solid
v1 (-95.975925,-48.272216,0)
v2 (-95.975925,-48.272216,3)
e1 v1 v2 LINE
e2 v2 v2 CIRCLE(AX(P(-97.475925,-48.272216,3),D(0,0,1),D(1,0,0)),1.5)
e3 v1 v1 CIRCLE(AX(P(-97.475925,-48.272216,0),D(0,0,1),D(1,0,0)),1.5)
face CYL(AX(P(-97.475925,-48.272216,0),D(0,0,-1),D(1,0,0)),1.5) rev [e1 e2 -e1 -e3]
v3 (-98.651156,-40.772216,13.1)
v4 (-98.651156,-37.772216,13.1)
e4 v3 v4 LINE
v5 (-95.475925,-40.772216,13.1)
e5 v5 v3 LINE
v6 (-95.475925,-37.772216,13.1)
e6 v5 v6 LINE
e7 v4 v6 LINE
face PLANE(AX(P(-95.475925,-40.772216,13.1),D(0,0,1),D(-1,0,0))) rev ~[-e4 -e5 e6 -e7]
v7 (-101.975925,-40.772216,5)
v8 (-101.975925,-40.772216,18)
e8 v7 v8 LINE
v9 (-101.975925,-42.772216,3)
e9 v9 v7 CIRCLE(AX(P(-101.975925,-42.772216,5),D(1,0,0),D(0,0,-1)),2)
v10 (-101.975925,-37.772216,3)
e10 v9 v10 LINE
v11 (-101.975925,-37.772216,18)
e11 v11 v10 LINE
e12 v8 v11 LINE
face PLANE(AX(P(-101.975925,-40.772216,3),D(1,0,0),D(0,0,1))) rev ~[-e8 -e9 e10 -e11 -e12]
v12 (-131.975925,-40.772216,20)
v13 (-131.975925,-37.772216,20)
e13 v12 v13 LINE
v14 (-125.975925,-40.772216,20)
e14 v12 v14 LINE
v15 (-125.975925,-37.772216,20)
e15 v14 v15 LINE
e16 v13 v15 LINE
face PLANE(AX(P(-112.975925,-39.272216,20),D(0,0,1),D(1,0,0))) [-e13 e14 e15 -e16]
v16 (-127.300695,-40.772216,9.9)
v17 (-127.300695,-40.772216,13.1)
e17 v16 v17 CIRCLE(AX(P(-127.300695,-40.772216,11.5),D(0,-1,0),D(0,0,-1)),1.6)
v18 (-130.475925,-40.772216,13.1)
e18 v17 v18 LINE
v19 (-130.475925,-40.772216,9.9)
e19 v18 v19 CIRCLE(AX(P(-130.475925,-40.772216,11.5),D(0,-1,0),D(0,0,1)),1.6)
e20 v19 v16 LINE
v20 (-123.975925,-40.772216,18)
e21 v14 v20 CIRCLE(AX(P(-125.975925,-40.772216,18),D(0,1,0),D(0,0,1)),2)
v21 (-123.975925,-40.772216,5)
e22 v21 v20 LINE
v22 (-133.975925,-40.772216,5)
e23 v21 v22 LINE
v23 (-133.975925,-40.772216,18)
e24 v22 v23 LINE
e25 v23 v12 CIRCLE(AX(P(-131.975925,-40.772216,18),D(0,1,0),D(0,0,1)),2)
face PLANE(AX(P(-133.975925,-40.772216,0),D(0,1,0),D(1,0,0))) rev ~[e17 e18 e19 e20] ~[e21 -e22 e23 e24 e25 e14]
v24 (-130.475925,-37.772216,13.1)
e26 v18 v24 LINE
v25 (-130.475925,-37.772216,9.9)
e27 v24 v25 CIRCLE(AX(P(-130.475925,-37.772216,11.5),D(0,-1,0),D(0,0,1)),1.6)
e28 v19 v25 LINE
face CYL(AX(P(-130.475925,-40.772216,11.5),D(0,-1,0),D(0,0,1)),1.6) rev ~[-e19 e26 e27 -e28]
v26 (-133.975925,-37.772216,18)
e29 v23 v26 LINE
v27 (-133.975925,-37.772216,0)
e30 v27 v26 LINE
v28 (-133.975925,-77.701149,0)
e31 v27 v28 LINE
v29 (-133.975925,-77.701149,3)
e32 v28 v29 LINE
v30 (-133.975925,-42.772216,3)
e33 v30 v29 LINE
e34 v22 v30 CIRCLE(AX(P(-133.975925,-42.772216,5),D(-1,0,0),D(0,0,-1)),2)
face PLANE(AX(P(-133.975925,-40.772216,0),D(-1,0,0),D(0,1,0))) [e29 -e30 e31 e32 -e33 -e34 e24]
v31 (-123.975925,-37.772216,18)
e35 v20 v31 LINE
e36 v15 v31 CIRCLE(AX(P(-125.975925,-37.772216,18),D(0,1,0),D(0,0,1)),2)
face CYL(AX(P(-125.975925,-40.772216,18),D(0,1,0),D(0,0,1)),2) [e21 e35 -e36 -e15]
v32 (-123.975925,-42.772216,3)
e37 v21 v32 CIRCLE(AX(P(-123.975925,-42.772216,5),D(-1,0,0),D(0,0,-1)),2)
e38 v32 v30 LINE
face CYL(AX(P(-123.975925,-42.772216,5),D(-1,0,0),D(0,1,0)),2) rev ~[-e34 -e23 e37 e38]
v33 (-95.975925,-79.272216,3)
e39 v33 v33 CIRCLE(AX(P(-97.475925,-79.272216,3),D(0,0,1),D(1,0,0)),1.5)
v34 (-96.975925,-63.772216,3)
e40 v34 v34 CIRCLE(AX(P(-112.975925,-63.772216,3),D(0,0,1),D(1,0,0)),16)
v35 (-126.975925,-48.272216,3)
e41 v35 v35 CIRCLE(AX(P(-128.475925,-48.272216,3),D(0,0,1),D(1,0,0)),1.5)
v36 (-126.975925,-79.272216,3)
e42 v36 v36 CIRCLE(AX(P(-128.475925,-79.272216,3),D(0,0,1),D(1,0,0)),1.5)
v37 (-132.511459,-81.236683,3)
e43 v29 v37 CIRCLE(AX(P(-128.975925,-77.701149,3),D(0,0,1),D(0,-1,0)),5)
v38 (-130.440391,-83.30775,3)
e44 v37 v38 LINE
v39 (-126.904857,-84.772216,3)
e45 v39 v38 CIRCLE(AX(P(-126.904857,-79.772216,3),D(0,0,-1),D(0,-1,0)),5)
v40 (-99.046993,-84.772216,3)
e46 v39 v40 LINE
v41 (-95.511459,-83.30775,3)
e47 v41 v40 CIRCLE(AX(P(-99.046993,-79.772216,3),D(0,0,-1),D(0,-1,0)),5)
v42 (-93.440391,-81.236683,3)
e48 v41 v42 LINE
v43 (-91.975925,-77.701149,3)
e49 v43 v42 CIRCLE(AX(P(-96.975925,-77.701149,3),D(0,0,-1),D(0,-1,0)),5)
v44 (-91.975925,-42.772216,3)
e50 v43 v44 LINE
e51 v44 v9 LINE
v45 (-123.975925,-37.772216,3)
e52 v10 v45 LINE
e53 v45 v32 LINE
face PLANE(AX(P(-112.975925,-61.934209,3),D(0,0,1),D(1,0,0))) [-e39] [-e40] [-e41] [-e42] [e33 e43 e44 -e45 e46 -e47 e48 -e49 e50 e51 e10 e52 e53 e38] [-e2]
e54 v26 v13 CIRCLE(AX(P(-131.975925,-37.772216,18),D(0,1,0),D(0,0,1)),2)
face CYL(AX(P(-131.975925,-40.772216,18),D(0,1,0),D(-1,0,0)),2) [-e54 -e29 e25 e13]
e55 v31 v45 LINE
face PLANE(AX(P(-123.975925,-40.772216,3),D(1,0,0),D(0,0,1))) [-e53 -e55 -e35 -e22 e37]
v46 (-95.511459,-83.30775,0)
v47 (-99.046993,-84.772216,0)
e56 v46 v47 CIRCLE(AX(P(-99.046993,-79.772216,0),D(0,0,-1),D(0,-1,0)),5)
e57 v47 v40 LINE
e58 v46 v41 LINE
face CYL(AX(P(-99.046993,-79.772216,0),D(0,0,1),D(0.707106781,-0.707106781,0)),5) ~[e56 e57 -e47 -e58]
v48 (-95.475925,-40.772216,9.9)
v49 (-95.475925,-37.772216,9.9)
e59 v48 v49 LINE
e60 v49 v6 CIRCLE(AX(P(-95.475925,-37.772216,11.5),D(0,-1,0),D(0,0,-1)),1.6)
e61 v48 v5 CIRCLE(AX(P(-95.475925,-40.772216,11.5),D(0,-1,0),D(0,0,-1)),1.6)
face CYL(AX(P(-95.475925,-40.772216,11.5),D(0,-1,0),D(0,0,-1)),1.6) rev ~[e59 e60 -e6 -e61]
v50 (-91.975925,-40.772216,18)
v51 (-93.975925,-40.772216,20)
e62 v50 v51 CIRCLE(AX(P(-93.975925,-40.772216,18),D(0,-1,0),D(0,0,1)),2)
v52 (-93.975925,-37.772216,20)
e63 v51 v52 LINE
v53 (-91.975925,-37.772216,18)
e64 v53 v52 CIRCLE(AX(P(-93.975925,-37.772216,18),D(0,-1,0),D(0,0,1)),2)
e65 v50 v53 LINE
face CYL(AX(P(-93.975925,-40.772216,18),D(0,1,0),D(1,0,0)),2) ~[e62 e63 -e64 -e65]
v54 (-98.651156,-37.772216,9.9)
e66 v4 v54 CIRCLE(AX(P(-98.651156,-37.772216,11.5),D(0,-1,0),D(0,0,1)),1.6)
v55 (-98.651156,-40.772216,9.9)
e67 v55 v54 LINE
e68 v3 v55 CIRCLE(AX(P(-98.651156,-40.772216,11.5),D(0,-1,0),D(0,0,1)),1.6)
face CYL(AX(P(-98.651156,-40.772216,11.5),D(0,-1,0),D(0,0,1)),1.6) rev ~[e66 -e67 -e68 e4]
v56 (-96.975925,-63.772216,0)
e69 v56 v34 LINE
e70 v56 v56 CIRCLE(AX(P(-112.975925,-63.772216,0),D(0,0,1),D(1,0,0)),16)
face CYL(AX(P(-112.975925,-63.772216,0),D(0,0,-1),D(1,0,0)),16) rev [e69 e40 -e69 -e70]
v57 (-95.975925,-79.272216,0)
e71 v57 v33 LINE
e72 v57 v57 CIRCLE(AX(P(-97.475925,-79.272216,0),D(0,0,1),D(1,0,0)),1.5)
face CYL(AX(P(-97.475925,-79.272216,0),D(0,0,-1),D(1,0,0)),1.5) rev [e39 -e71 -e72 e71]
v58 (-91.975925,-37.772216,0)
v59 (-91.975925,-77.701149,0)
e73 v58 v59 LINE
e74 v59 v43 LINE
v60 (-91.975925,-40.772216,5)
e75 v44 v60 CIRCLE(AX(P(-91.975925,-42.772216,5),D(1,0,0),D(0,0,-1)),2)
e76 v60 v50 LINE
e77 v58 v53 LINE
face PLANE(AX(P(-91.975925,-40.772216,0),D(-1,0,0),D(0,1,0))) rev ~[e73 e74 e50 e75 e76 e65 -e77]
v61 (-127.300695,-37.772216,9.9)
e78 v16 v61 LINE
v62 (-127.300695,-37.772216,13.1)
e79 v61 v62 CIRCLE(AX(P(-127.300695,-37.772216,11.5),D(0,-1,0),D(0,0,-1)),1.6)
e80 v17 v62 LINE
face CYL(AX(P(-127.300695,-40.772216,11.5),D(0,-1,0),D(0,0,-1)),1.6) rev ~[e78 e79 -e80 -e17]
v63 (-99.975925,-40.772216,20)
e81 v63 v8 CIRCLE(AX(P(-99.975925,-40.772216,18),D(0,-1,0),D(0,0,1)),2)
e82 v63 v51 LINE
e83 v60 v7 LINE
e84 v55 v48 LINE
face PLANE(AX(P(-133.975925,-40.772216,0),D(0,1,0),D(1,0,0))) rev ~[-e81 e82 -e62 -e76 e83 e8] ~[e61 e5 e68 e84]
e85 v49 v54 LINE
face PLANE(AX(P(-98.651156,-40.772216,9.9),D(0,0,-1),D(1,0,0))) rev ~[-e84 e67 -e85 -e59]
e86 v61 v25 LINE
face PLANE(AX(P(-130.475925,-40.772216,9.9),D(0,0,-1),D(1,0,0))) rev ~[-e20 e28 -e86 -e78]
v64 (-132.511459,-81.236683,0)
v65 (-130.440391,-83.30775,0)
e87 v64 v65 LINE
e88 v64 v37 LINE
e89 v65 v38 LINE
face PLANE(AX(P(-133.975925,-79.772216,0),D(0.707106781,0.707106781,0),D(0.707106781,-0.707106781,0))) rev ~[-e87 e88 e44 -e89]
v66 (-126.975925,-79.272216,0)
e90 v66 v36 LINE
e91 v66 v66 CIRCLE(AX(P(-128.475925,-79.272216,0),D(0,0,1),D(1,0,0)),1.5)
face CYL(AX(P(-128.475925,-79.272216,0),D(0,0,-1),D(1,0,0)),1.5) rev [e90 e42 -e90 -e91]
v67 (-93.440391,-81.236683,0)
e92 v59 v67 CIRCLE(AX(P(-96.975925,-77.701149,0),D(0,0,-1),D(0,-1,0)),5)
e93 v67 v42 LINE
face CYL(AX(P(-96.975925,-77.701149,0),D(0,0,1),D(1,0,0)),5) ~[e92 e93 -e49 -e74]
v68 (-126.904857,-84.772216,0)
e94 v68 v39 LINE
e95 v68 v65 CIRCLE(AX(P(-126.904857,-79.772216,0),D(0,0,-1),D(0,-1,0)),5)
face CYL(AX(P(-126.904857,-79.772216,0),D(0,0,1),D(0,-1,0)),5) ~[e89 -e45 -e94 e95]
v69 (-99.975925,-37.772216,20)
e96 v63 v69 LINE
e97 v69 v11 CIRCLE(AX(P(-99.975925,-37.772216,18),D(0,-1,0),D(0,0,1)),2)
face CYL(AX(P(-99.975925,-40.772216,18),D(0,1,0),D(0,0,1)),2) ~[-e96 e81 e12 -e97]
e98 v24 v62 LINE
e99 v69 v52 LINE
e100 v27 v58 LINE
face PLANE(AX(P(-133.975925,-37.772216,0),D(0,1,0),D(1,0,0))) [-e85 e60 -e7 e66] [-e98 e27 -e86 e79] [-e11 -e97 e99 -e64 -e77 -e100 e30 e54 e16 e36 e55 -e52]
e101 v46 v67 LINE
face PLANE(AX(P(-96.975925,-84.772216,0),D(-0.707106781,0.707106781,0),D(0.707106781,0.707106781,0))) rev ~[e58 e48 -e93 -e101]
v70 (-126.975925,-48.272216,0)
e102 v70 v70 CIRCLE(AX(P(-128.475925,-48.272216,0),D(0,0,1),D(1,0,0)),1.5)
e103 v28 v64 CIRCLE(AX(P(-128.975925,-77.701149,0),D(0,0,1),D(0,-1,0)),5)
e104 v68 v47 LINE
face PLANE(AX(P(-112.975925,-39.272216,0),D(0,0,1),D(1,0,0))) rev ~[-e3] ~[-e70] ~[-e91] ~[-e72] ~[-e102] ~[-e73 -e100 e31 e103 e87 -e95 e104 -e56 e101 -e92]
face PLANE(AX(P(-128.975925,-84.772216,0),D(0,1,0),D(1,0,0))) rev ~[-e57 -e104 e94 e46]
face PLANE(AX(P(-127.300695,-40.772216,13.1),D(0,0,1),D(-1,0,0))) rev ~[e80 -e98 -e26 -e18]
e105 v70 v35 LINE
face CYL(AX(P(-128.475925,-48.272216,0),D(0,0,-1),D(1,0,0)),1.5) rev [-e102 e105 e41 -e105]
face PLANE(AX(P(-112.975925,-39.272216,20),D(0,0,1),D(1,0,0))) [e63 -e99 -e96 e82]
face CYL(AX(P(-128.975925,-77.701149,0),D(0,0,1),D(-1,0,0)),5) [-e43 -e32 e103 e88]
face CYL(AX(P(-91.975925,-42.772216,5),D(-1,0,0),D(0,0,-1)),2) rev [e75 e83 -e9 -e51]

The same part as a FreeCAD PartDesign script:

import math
import FreeCAD as App
import Part
import Sketcher

V = App.Vector
Q = App.Units.Quantity


def edges_at(feature, points):
    """Names of the edges that pass closest to the given points."""
    edges = feature.Shape.Edges
    near = lambda p: min(range(len(edges)), key=lambda i: edges[i].distToShape(Part.Vertex(*p))[0])
    return sorted({f"Edge{near(p) + 1}" for p in points})


def add_polygon(sketch, points):
    """Adds a closed chain of lines whose ends are joined by coincident constraints."""
    first, n = sketch.GeometryCount, len(points)
    for a, b in zip(points, points[1:] + points[:1]):
        sketch.addGeometry(Part.LineSegment(App.Vector(*a, 0), App.Vector(*b, 0)), False)
    for i in range(n):
        sketch.addConstraint(Sketcher.Constraint("Coincident", first + i, 2, first + (i + 1) % n, 1))

doc = App.newDocument("Part")
body = doc.addObject("PartDesign::Body", "Body")

# Sketch on XY plane
sketch1 = doc.addObject("Sketcher::SketchObject", "Sketch")
body.addObject(sketch1)
sketch1.AttachmentSupport = (doc.XY_Plane, [""])
sketch1.MapMode = "FlatFace"
add_polygon(sketch1, [(-97, -84.8), (-92, -79.8), (-92, -40.8), (-134, -40.8), (-134, -79.8), (-129, -84.8)])  # lines 0-5
sketch1.addGeometry(Part.Circle(V(-128.5, -79.3, 0), V(0, 0, 1), 1.5), False)  # 6
sketch1.addGeometry(Part.Circle(V(-97.5, -79.3, 0), V(0, 0, 1), 1.5), False)  # 7
sketch1.addGeometry(Part.Circle(V(-113, -63.8, 0), V(0, 0, 1), 16), False)  # 8
sketch1.addGeometry(Part.Circle(V(-128.5, -48.3, 0), V(0, 0, 1), 1.5), False)  # 9
sketch1.addGeometry(Part.Circle(V(-97.5, -48.3, 0), V(0, 0, 1), 1.5), False)  # 10
sketch1.addConstraint([
    Sketcher.Constraint("Vertical", 1),
    Sketcher.Constraint("Horizontal", 2),
    Sketcher.Constraint("Vertical", 3),
    Sketcher.Constraint("Horizontal", 5),
    Sketcher.Constraint("Equal", 6, 7),
    Sketcher.Constraint("Equal", 7, 9),
    Sketcher.Constraint("Equal", 9, 10),
    Sketcher.Constraint("Perpendicular", 0, 4),
    Sketcher.Constraint("Horizontal", 6, 3, 7, 3),
    Sketcher.Constraint("Horizontal", 9, 3, 10, 3),
    Sketcher.Constraint("Horizontal", 0, 2, 3, 2),
    Sketcher.Constraint("Vertical", 6, 3, 9, 3),
    Sketcher.Constraint("Vertical", 7, 3, 10, 3),
    Sketcher.Constraint("Equal", 0, 4),
    Sketcher.Constraint("Diameter", 6, Q("3 mm")),
    Sketcher.Constraint("Diameter", 8, Q("32 mm")),
    Sketcher.Constraint("DistanceX", 2, 2, 2, 1, Q("42 mm")),
    Sketcher.Constraint("DistanceX", 5, 1, 5, 2, Q("32 mm")),
    Sketcher.Constraint("DistanceY", 1, 1, 1, 2, Q("39 mm")),
    Sketcher.Constraint("DistanceX", 6, 3, 7, 3, Q("31 mm")),
    Sketcher.Constraint("DistanceY", 6, 3, 9, 3, Q("31 mm")),
    Sketcher.Constraint("DistanceX", 8, 3, 0, 2, Q("21 mm")),
    Sketcher.Constraint("DistanceY", 0, 2, 8, 3, Q("16 mm")),
    Sketcher.Constraint("DistanceX", 6, 3, 8, 3, Q("15.5 mm")),
    Sketcher.Constraint("DistanceY", 6, 3, 8, 3, Q("15.5 mm")),
    Sketcher.Constraint("DistanceX", 6, 3, -1, 1, Q("128.475925 mm")),
    Sketcher.Constraint("DistanceY", 6, 3, -1, 1, Q("79.272216 mm")),
])
pad1 = doc.addObject("PartDesign::Pad", "Pad")
body.addObject(pad1)
pad1.Profile = sketch1
pad1.Length = 3

# Sketch on XY plane
sketch2 = doc.addObject("Sketcher::SketchObject", "Sketch001")
body.addObject(sketch2)
sketch2.AttachmentSupport = (doc.XY_Plane, [""])
sketch2.MapMode = "FlatFace"
add_polygon(sketch2, [(-134, -37.8), (-134, -40.8), (-92, -40.8), (-92, -37.8)])  # lines 0-3
sketch2.addConstraint([
    Sketcher.Constraint("Vertical", 0),
    Sketcher.Constraint("Horizontal", 1),
    Sketcher.Constraint("Vertical", 2),
    Sketcher.Constraint("Horizontal", 3),
    Sketcher.Constraint("DistanceX", 1, 1, 1, 2, Q("42 mm")),
    Sketcher.Constraint("DistanceY", 0, 2, 0, 1, Q("3 mm")),
    Sketcher.Constraint("DistanceX", 0, 2, -1, 1, Q("133.975925 mm")),
    Sketcher.Constraint("DistanceY", 0, 2, -1, 1, Q("40.772216 mm")),
])
pad2 = doc.addObject("PartDesign::Pad", "Pad001")
body.addObject(pad2)
pad2.Profile = sketch2
pad2.Length = 20

# Sketch on XZ plane
sketch3 = doc.addObject("Sketcher::SketchObject", "Sketch002")
body.addObject(sketch3)
sketch3.AttachmentSupport = (doc.XZ_Plane, [""])
sketch3.MapMode = "FlatFace"
sketch3.AttachmentOffset = App.Placement(V(0, 0, 40.772216), App.Rotation())
sketch3.addGeometry([
    Part.ArcOfCircle(Part.Circle(V(-95.5, 11.5, 0), V(0, 0, 1), 1.6), math.radians(-90), math.radians(90)),  # 0
    Part.LineSegment(V(-95.5, 13.1, 0), V(-98.7, 13.1, 0)),  # 1
    Part.ArcOfCircle(Part.Circle(V(-98.7, 11.5, 0), V(0, 0, 1), 1.6), math.radians(90), math.radians(270)),  # 2
    Part.LineSegment(V(-98.7, 9.9, 0), V(-95.5, 9.9, 0)),  # 3
    Part.LineSegment(V(-127.3, 13.1, 0), V(-130.5, 13.1, 0)),  # 4
    Part.ArcOfCircle(Part.Circle(V(-130.5, 11.5, 0), V(0, 0, 1), 1.6), math.radians(90), math.radians(270)),  # 5
    Part.LineSegment(V(-130.5, 9.9, 0), V(-127.3, 9.9, 0)),  # 6
    Part.ArcOfCircle(Part.Circle(V(-127.3, 11.5, 0), V(0, 0, 1), 1.6), math.radians(-90), math.radians(90)),  # 7
], False)
sketch3.addConstraint([
    Sketcher.Constraint("Tangent", 0, 2, 1, 1),
    Sketcher.Constraint("Tangent", 1, 2, 2, 1),
    Sketcher.Constraint("Tangent", 2, 2, 3, 1),
    Sketcher.Constraint("Tangent", 3, 2, 0, 1),
    Sketcher.Constraint("Tangent", 4, 2, 5, 1),
    Sketcher.Constraint("Tangent", 5, 2, 6, 1),
    Sketcher.Constraint("Tangent", 6, 2, 7, 1),
    Sketcher.Constraint("Tangent", 7, 2, 4, 1),
    Sketcher.Constraint("Horizontal", 1),
    Sketcher.Constraint("Horizontal", 3),
    Sketcher.Constraint("Horizontal", 4),
    Sketcher.Constraint("Horizontal", 6),
    Sketcher.Constraint("Equal", 2, 5),
    Sketcher.Constraint("Horizontal", 2, 3, 5, 3),
    Sketcher.Constraint("Equal", 3, 4),
    Sketcher.Constraint("Radius", 0, Q("1.6 mm")),
    Sketcher.Constraint("DistanceX", 5, 3, 0, 3, Q("35 mm")),
    Sketcher.Constraint("DistanceY", -1, 1, 0, 3, Q("11.5 mm")),
    Sketcher.Constraint("DistanceX", 1, 2, 1, 1, Q("3.175231 mm")),
    Sketcher.Constraint("DistanceX", 0, 3, -1, 1, Q("95.475925 mm")),
])
pocket1 = doc.addObject("PartDesign::Pocket", "Pocket")
body.addObject(pocket1)
pocket1.Profile = sketch3
pocket1.Length = 25

# Sketch on XZ plane
sketch4 = doc.addObject("Sketcher::SketchObject", "Sketch003")
body.addObject(sketch4)
sketch4.AttachmentSupport = (doc.XZ_Plane, [""])
sketch4.MapMode = "FlatFace"
sketch4.AttachmentOffset = App.Placement(V(0, 0, 40.772216), App.Rotation())
add_polygon(sketch4, [(-124, 20), (-124, 3), (-102, 3), (-102, 20)])  # lines 0-3
sketch4.addConstraint([
    Sketcher.Constraint("Vertical", 0),
    Sketcher.Constraint("Horizontal", 1),
    Sketcher.Constraint("Vertical", 2),
    Sketcher.Constraint("Horizontal", 3),
    Sketcher.Constraint("DistanceX", 1, 1, 1, 2, Q("22 mm")),
    Sketcher.Constraint("DistanceY", 0, 2, 0, 1, Q("17 mm")),
    Sketcher.Constraint("DistanceY", -1, 1, 0, 2, Q("3 mm")),
    Sketcher.Constraint("DistanceX", 0, 2, -1, 1, Q("123.975925 mm")),
])
pocket2 = doc.addObject("PartDesign::Pocket", "Pocket001")
body.addObject(pocket2)
pocket2.Profile = sketch4
pocket2.Length = 25
doc.recompute()

fillet = doc.addObject("PartDesign::Fillet", "Fillet")
body.addObject(fillet)
fillet.Base = (pocket2, edges_at(pocket2, [
    (-96.976, -40.772, 3),
    (-128.976, -40.772, 3),
    (-91.976, -39.272, 20),
    (-101.976, -39.272, 20),
    (-123.976, -39.272, 20),
    (-133.976, -39.272, 20),
]))
fillet.Radius = 2
doc.recompute()

fillet2 = doc.addObject("PartDesign::Fillet", "Fillet001")
body.addObject(fillet2)
fillet2.Base = (fillet, edges_at(fillet, [
    (-133.976, -79.772, 1.5),
    (-128.976, -84.772, 1.5),
    (-96.976, -84.772, 1.5),
    (-91.976, -79.772, 1.5),
]))
fillet2.Radius = 5

doc.recompute()
